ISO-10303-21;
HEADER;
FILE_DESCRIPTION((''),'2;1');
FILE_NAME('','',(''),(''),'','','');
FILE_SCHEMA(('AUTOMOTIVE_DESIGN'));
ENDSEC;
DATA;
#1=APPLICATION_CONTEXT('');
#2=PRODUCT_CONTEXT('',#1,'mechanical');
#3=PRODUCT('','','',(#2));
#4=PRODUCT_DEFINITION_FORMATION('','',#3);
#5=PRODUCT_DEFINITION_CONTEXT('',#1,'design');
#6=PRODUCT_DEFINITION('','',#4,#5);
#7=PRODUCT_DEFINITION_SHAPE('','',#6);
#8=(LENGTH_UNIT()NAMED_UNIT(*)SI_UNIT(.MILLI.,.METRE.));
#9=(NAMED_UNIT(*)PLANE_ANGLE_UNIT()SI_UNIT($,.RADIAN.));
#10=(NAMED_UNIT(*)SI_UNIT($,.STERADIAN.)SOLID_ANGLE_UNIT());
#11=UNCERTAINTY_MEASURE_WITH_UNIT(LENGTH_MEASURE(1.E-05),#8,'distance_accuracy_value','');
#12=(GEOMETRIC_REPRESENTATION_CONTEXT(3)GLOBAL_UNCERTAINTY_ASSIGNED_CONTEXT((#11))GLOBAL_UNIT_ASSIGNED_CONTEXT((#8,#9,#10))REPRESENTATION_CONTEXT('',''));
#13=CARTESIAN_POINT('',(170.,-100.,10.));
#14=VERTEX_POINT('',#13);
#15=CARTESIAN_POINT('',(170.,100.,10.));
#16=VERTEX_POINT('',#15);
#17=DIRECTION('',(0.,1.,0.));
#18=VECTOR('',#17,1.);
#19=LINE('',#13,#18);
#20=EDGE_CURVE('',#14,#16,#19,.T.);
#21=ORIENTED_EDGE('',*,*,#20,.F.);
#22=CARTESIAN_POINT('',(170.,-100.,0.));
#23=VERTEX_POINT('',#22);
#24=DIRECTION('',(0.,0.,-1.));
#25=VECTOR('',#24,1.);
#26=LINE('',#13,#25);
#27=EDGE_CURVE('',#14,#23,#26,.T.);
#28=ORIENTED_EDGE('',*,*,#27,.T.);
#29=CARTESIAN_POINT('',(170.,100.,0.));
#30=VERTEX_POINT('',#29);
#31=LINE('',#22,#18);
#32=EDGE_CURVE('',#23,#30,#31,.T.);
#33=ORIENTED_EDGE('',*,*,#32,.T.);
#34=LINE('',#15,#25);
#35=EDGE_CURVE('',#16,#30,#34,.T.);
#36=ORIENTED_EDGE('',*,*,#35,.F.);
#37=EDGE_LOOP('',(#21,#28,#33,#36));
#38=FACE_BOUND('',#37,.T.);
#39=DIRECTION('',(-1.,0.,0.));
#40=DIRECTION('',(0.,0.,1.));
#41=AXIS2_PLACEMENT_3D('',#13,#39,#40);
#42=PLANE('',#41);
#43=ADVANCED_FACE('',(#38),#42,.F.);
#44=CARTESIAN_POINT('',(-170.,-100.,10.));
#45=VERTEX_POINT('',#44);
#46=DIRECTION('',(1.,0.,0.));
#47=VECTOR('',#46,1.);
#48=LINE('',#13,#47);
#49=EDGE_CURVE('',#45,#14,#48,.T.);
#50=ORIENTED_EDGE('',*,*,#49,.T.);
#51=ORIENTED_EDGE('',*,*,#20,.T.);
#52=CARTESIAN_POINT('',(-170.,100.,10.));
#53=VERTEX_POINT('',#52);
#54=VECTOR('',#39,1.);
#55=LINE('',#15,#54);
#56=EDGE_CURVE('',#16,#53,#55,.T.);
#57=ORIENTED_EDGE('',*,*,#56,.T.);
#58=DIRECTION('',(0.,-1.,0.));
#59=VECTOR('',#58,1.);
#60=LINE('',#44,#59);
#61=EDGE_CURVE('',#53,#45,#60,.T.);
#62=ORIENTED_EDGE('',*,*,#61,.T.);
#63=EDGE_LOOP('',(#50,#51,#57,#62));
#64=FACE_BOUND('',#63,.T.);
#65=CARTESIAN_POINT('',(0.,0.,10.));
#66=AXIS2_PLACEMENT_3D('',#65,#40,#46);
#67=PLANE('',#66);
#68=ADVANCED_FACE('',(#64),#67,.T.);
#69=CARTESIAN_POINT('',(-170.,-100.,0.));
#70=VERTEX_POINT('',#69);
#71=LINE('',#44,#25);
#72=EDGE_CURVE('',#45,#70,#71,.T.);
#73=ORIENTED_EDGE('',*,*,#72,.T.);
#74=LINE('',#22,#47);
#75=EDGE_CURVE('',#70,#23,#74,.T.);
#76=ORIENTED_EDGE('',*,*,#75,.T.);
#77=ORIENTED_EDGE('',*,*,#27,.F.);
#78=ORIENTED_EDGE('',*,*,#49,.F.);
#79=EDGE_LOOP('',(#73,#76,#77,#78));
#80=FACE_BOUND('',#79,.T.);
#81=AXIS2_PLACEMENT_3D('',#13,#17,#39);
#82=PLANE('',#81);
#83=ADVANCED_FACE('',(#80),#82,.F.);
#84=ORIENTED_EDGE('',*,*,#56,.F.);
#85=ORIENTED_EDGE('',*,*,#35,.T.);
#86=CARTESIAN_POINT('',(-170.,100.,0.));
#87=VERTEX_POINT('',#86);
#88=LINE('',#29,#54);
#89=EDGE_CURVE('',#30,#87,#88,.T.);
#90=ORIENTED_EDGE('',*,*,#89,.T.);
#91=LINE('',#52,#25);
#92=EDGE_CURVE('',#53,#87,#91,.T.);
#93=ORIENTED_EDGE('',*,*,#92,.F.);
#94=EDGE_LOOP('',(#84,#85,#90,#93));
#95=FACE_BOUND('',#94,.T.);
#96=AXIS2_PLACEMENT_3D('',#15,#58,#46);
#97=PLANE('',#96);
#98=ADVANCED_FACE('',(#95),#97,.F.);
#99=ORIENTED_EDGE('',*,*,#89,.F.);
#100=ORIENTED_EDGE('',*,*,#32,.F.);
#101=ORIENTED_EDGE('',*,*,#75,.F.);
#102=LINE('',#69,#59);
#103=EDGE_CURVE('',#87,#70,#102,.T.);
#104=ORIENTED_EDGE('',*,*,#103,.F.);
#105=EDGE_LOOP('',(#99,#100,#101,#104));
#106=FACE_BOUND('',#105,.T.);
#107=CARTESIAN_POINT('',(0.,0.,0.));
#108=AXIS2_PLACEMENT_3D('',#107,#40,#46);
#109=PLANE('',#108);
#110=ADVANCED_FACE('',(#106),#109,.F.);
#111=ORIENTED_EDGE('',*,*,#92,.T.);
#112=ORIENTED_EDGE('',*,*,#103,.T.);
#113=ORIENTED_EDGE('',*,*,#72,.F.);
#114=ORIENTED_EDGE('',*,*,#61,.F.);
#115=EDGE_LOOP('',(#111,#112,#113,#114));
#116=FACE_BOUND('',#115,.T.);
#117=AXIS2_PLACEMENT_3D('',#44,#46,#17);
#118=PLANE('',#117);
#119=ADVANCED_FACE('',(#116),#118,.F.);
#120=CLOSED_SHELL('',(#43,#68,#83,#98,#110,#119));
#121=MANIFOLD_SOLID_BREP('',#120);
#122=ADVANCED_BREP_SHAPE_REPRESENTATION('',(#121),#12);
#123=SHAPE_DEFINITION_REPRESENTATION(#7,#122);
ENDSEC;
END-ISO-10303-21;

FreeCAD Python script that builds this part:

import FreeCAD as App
import Part
import Sketcher
from FreeCAD import Vector
Q = App.Units.Quantity


def add_polygon(sketch, points):
    """Adds a closed chain of lines whose ends are joined by coincident constraints."""
    first, n = sketch.GeometryCount, len(points)
    for a, b in zip(points, points[1:] + points[:1]):
        sketch.addGeometry(Part.LineSegment(App.Vector(*a, 0), App.Vector(*b, 0)), False)
    for i in range(n):
        sketch.addConstraint(Sketcher.Constraint("Coincident", first + i, 2, first + (i + 1) % n, 1))

doc = App.newDocument("Part")
body = doc.addObject("PartDesign::Body", "Body")

# Sketch on XY plane
sketch1 = doc.addObject("Sketcher::SketchObject", "Sketch")
body.addObject(sketch1)
sketch1.AttachmentSupport = (doc.XY_Plane, [""])
sketch1.MapMode = "FlatFace"
add_polygon(sketch1, [(-170, 100), (-170, -100), (170, -100), (170, 100)])  # lines 0-3
sketch1.addConstraint(Sketcher.Constraint("Vertical", 0))
sketch1.addConstraint(Sketcher.Constraint("Horizontal", 1))
sketch1.addConstraint(Sketcher.Constraint("Vertical", 2))
sketch1.addConstraint(Sketcher.Constraint("Horizontal", 3))
sketch1.addConstraint(Sketcher.Constraint("Symmetric", 0, 2, 2, 2, -1, 1))
sketch1.addConstraint(Sketcher.Constraint("DistanceX", 1, 1, 1, 2, Q("340 mm")))
sketch1.addConstraint(Sketcher.Constraint("DistanceY", 0, 2, 0, 1, Q("200 mm")))
pad1 = doc.addObject("PartDesign::Pad", "Pad")
body.addObject(pad1)
pad1.Profile = sketch1
pad1.Length = 10

doc.recompute()
